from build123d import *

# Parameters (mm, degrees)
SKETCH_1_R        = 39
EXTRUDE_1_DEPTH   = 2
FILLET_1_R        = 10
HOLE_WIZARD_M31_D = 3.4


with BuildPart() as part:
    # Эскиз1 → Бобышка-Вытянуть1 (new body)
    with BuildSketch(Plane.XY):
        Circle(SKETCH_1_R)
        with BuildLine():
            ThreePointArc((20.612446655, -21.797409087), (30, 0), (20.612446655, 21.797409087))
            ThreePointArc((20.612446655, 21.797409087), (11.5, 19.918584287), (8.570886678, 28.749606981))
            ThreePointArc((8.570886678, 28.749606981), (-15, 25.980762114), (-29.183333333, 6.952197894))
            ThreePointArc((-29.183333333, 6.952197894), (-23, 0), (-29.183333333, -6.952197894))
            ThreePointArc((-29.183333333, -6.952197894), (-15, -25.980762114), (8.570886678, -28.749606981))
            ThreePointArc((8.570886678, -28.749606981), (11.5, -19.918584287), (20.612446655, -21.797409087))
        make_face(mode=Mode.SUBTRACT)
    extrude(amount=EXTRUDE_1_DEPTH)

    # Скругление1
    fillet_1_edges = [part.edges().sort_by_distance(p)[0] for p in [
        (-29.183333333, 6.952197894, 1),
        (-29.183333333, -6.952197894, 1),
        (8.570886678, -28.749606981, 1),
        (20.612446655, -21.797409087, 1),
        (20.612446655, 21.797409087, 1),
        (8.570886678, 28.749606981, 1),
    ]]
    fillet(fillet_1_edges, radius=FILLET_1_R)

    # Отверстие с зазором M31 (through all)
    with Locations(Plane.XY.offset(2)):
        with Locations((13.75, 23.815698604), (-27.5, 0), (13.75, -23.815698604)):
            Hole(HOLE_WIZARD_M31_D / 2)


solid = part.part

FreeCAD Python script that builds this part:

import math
import FreeCAD as App
import Part
import Sketcher

V = App.Vector
Q = App.Units.Quantity


def edges_at(feature, points):
    """Names of the edges that pass closest to the given points."""
    edges = feature.Shape.Edges
    near = lambda p: min(range(len(edges)), key=lambda i: edges[i].distToShape(Part.Vertex(*p))[0])
    return sorted({f"Edge{near(p) + 1}" for p in points})

doc = App.newDocument("Part")
body = doc.addObject("PartDesign::Body", "Body")

# Sketch on XY plane
sketch1 = doc.addObject("Sketcher::SketchObject", "Sketch")
body.addObject(sketch1)
sketch1.AttachmentSupport = (doc.XY_Plane, [""])
sketch1.MapMode = "FlatFace"
sketch1.addGeometry([
    Part.Circle(V(0, 0, 0), V(0, 0, 1), 39),  # 0
    Part.ArcOfCircle(Part.Circle(V(0, 0, 0), V(0, 0, 1), 30), math.radians(-46.60047), math.radians(46.60047)),  # 1
    Part.ArcOfCircle(Part.Circle(V(15, -25.980762, 0), V(0, 0, 1), 7), math.radians(36.699765), math.radians(203.300235)),  # 2
    Part.ArcOfCircle(Part.Circle(V(0, 0, 0), V(0, 0, 1), 30), math.radians(-166.60047), math.radians(-73.39953)),  # 3
    Part.ArcOfCircle(Part.Circle(V(-30, 0, 0), V(0, 0, 1), 7), math.radians(-83.300235), math.radians(83.300235)),  # 4
    Part.ArcOfCircle(Part.Circle(V(0, 0, 0), V(0, 0, 1), 30), math.radians(73.39953), math.radians(166.60047)),  # 5
    Part.ArcOfCircle(Part.Circle(V(15, 25.980762, 0), V(0, 0, 1), 7), math.radians(156.699765), math.radians(323.300235)),  # 6
], False)
sketch1.addConstraint([
    Sketcher.Constraint("Coincident", 1, 1, 2, 1),
    Sketcher.Constraint("Coincident", 2, 2, 3, 2),
    Sketcher.Constraint("Coincident", 3, 1, 4, 1),
    Sketcher.Constraint("Coincident", 4, 2, 5, 2),
    Sketcher.Constraint("Coincident", 5, 1, 6, 1),
    Sketcher.Constraint("Coincident", 6, 2, 1, 2),
    Sketcher.Constraint("Coincident", 0, 3, -1, 1),
    Sketcher.Constraint("Coincident", 1, 3, -1, 1),
    Sketcher.Constraint("Coincident", 3, 3, -1, 1),
    Sketcher.Constraint("Coincident", 5, 3, -1, 1),
    Sketcher.Constraint("Equal", 1, 3),
    Sketcher.Constraint("Equal", 2, 4),
    Sketcher.Constraint("Equal", 3, 5),
    Sketcher.Constraint("Equal", 4, 6),
    Sketcher.Constraint("Symmetric", 2, 3, 6, 3, -1),
    Sketcher.Constraint("PointOnObject", 4, 3, -1),
    Sketcher.Constraint("Diameter", 0, Q("78 mm")),
    Sketcher.Constraint("Radius", 1, Q("30 mm")),
    Sketcher.Constraint("Radius", 2, Q("7 mm")),
    Sketcher.Constraint("DistanceX", -1, 1, 2, 3, Q("15 mm")),
    Sketcher.Constraint("DistanceX", 4, 3, -1, 1, Q("30 mm")),
    Sketcher.Constraint("DistanceY", 1, 1, -1, 1, Q("21.797409 mm")),
])
pad1 = doc.addObject("PartDesign::Pad", "Pad")
body.addObject(pad1)
pad1.Profile = sketch1
pad1.Length = 2
doc.recompute()

fillet = doc.addObject("PartDesign::Fillet", "Fillet")
body.addObject(fillet)
fillet.Base = (pad1, edges_at(pad1, [
    (-29.183, 6.952, 1),
    (-29.183, -6.952, 1),
    (8.571, -28.75, 1),
    (20.612, -21.797, 1),
    (20.612, 21.797, 1),
    (8.571, 28.75, 1),
]))
fillet.Radius = 10

# Sketch on XY plane
sketch2 = doc.addObject("Sketcher::SketchObject", "Sketch001")
body.addObject(sketch2)
sketch2.AttachmentSupport = (doc.XY_Plane, [""])
sketch2.MapMode = "FlatFace"
sketch2.AttachmentOffset = App.Placement(V(0, 0, 2), App.Rotation())
sketch2.addGeometry([
    Part.Circle(V(13.75, 23.815699, 0), V(0, 0, 1), 1.7),
    Part.Circle(V(-27.5, 0, 0), V(0, 0, 1), 1.7),
    Part.Circle(V(13.75, -23.815699, 0), V(0, 0, 1), 1.7),
], False)
sketch2.addConstraint([
    Sketcher.Constraint("Equal", 0, 1),
    Sketcher.Constraint("Equal", 1, 2),
    Sketcher.Constraint("Symmetric", 0, 3, 2, 3, -1),
    Sketcher.Constraint("PointOnObject", 1, 3, -1),
    Sketcher.Constraint("Diameter", 0, Q("3.4 mm")),
    Sketcher.Constraint("DistanceX", 1, 3, -1, 1, Q("27.5 mm")),
    Sketcher.Constraint("DistanceX", -1, 1, 0, 3, Q("13.75 mm")),
    Sketcher.Constraint("DistanceY", -1, 1, 0, 3, Q("23.815699 mm")),
])
doc.recompute()
hole = doc.addObject("PartDesign::Hole", "Hole")
body.addObject(hole)
hole.Profile = sketch2
hole.ThreadType = "None"
hole.Diameter = 3.4
hole.DepthType = "ThroughAll"

doc.recompute()
